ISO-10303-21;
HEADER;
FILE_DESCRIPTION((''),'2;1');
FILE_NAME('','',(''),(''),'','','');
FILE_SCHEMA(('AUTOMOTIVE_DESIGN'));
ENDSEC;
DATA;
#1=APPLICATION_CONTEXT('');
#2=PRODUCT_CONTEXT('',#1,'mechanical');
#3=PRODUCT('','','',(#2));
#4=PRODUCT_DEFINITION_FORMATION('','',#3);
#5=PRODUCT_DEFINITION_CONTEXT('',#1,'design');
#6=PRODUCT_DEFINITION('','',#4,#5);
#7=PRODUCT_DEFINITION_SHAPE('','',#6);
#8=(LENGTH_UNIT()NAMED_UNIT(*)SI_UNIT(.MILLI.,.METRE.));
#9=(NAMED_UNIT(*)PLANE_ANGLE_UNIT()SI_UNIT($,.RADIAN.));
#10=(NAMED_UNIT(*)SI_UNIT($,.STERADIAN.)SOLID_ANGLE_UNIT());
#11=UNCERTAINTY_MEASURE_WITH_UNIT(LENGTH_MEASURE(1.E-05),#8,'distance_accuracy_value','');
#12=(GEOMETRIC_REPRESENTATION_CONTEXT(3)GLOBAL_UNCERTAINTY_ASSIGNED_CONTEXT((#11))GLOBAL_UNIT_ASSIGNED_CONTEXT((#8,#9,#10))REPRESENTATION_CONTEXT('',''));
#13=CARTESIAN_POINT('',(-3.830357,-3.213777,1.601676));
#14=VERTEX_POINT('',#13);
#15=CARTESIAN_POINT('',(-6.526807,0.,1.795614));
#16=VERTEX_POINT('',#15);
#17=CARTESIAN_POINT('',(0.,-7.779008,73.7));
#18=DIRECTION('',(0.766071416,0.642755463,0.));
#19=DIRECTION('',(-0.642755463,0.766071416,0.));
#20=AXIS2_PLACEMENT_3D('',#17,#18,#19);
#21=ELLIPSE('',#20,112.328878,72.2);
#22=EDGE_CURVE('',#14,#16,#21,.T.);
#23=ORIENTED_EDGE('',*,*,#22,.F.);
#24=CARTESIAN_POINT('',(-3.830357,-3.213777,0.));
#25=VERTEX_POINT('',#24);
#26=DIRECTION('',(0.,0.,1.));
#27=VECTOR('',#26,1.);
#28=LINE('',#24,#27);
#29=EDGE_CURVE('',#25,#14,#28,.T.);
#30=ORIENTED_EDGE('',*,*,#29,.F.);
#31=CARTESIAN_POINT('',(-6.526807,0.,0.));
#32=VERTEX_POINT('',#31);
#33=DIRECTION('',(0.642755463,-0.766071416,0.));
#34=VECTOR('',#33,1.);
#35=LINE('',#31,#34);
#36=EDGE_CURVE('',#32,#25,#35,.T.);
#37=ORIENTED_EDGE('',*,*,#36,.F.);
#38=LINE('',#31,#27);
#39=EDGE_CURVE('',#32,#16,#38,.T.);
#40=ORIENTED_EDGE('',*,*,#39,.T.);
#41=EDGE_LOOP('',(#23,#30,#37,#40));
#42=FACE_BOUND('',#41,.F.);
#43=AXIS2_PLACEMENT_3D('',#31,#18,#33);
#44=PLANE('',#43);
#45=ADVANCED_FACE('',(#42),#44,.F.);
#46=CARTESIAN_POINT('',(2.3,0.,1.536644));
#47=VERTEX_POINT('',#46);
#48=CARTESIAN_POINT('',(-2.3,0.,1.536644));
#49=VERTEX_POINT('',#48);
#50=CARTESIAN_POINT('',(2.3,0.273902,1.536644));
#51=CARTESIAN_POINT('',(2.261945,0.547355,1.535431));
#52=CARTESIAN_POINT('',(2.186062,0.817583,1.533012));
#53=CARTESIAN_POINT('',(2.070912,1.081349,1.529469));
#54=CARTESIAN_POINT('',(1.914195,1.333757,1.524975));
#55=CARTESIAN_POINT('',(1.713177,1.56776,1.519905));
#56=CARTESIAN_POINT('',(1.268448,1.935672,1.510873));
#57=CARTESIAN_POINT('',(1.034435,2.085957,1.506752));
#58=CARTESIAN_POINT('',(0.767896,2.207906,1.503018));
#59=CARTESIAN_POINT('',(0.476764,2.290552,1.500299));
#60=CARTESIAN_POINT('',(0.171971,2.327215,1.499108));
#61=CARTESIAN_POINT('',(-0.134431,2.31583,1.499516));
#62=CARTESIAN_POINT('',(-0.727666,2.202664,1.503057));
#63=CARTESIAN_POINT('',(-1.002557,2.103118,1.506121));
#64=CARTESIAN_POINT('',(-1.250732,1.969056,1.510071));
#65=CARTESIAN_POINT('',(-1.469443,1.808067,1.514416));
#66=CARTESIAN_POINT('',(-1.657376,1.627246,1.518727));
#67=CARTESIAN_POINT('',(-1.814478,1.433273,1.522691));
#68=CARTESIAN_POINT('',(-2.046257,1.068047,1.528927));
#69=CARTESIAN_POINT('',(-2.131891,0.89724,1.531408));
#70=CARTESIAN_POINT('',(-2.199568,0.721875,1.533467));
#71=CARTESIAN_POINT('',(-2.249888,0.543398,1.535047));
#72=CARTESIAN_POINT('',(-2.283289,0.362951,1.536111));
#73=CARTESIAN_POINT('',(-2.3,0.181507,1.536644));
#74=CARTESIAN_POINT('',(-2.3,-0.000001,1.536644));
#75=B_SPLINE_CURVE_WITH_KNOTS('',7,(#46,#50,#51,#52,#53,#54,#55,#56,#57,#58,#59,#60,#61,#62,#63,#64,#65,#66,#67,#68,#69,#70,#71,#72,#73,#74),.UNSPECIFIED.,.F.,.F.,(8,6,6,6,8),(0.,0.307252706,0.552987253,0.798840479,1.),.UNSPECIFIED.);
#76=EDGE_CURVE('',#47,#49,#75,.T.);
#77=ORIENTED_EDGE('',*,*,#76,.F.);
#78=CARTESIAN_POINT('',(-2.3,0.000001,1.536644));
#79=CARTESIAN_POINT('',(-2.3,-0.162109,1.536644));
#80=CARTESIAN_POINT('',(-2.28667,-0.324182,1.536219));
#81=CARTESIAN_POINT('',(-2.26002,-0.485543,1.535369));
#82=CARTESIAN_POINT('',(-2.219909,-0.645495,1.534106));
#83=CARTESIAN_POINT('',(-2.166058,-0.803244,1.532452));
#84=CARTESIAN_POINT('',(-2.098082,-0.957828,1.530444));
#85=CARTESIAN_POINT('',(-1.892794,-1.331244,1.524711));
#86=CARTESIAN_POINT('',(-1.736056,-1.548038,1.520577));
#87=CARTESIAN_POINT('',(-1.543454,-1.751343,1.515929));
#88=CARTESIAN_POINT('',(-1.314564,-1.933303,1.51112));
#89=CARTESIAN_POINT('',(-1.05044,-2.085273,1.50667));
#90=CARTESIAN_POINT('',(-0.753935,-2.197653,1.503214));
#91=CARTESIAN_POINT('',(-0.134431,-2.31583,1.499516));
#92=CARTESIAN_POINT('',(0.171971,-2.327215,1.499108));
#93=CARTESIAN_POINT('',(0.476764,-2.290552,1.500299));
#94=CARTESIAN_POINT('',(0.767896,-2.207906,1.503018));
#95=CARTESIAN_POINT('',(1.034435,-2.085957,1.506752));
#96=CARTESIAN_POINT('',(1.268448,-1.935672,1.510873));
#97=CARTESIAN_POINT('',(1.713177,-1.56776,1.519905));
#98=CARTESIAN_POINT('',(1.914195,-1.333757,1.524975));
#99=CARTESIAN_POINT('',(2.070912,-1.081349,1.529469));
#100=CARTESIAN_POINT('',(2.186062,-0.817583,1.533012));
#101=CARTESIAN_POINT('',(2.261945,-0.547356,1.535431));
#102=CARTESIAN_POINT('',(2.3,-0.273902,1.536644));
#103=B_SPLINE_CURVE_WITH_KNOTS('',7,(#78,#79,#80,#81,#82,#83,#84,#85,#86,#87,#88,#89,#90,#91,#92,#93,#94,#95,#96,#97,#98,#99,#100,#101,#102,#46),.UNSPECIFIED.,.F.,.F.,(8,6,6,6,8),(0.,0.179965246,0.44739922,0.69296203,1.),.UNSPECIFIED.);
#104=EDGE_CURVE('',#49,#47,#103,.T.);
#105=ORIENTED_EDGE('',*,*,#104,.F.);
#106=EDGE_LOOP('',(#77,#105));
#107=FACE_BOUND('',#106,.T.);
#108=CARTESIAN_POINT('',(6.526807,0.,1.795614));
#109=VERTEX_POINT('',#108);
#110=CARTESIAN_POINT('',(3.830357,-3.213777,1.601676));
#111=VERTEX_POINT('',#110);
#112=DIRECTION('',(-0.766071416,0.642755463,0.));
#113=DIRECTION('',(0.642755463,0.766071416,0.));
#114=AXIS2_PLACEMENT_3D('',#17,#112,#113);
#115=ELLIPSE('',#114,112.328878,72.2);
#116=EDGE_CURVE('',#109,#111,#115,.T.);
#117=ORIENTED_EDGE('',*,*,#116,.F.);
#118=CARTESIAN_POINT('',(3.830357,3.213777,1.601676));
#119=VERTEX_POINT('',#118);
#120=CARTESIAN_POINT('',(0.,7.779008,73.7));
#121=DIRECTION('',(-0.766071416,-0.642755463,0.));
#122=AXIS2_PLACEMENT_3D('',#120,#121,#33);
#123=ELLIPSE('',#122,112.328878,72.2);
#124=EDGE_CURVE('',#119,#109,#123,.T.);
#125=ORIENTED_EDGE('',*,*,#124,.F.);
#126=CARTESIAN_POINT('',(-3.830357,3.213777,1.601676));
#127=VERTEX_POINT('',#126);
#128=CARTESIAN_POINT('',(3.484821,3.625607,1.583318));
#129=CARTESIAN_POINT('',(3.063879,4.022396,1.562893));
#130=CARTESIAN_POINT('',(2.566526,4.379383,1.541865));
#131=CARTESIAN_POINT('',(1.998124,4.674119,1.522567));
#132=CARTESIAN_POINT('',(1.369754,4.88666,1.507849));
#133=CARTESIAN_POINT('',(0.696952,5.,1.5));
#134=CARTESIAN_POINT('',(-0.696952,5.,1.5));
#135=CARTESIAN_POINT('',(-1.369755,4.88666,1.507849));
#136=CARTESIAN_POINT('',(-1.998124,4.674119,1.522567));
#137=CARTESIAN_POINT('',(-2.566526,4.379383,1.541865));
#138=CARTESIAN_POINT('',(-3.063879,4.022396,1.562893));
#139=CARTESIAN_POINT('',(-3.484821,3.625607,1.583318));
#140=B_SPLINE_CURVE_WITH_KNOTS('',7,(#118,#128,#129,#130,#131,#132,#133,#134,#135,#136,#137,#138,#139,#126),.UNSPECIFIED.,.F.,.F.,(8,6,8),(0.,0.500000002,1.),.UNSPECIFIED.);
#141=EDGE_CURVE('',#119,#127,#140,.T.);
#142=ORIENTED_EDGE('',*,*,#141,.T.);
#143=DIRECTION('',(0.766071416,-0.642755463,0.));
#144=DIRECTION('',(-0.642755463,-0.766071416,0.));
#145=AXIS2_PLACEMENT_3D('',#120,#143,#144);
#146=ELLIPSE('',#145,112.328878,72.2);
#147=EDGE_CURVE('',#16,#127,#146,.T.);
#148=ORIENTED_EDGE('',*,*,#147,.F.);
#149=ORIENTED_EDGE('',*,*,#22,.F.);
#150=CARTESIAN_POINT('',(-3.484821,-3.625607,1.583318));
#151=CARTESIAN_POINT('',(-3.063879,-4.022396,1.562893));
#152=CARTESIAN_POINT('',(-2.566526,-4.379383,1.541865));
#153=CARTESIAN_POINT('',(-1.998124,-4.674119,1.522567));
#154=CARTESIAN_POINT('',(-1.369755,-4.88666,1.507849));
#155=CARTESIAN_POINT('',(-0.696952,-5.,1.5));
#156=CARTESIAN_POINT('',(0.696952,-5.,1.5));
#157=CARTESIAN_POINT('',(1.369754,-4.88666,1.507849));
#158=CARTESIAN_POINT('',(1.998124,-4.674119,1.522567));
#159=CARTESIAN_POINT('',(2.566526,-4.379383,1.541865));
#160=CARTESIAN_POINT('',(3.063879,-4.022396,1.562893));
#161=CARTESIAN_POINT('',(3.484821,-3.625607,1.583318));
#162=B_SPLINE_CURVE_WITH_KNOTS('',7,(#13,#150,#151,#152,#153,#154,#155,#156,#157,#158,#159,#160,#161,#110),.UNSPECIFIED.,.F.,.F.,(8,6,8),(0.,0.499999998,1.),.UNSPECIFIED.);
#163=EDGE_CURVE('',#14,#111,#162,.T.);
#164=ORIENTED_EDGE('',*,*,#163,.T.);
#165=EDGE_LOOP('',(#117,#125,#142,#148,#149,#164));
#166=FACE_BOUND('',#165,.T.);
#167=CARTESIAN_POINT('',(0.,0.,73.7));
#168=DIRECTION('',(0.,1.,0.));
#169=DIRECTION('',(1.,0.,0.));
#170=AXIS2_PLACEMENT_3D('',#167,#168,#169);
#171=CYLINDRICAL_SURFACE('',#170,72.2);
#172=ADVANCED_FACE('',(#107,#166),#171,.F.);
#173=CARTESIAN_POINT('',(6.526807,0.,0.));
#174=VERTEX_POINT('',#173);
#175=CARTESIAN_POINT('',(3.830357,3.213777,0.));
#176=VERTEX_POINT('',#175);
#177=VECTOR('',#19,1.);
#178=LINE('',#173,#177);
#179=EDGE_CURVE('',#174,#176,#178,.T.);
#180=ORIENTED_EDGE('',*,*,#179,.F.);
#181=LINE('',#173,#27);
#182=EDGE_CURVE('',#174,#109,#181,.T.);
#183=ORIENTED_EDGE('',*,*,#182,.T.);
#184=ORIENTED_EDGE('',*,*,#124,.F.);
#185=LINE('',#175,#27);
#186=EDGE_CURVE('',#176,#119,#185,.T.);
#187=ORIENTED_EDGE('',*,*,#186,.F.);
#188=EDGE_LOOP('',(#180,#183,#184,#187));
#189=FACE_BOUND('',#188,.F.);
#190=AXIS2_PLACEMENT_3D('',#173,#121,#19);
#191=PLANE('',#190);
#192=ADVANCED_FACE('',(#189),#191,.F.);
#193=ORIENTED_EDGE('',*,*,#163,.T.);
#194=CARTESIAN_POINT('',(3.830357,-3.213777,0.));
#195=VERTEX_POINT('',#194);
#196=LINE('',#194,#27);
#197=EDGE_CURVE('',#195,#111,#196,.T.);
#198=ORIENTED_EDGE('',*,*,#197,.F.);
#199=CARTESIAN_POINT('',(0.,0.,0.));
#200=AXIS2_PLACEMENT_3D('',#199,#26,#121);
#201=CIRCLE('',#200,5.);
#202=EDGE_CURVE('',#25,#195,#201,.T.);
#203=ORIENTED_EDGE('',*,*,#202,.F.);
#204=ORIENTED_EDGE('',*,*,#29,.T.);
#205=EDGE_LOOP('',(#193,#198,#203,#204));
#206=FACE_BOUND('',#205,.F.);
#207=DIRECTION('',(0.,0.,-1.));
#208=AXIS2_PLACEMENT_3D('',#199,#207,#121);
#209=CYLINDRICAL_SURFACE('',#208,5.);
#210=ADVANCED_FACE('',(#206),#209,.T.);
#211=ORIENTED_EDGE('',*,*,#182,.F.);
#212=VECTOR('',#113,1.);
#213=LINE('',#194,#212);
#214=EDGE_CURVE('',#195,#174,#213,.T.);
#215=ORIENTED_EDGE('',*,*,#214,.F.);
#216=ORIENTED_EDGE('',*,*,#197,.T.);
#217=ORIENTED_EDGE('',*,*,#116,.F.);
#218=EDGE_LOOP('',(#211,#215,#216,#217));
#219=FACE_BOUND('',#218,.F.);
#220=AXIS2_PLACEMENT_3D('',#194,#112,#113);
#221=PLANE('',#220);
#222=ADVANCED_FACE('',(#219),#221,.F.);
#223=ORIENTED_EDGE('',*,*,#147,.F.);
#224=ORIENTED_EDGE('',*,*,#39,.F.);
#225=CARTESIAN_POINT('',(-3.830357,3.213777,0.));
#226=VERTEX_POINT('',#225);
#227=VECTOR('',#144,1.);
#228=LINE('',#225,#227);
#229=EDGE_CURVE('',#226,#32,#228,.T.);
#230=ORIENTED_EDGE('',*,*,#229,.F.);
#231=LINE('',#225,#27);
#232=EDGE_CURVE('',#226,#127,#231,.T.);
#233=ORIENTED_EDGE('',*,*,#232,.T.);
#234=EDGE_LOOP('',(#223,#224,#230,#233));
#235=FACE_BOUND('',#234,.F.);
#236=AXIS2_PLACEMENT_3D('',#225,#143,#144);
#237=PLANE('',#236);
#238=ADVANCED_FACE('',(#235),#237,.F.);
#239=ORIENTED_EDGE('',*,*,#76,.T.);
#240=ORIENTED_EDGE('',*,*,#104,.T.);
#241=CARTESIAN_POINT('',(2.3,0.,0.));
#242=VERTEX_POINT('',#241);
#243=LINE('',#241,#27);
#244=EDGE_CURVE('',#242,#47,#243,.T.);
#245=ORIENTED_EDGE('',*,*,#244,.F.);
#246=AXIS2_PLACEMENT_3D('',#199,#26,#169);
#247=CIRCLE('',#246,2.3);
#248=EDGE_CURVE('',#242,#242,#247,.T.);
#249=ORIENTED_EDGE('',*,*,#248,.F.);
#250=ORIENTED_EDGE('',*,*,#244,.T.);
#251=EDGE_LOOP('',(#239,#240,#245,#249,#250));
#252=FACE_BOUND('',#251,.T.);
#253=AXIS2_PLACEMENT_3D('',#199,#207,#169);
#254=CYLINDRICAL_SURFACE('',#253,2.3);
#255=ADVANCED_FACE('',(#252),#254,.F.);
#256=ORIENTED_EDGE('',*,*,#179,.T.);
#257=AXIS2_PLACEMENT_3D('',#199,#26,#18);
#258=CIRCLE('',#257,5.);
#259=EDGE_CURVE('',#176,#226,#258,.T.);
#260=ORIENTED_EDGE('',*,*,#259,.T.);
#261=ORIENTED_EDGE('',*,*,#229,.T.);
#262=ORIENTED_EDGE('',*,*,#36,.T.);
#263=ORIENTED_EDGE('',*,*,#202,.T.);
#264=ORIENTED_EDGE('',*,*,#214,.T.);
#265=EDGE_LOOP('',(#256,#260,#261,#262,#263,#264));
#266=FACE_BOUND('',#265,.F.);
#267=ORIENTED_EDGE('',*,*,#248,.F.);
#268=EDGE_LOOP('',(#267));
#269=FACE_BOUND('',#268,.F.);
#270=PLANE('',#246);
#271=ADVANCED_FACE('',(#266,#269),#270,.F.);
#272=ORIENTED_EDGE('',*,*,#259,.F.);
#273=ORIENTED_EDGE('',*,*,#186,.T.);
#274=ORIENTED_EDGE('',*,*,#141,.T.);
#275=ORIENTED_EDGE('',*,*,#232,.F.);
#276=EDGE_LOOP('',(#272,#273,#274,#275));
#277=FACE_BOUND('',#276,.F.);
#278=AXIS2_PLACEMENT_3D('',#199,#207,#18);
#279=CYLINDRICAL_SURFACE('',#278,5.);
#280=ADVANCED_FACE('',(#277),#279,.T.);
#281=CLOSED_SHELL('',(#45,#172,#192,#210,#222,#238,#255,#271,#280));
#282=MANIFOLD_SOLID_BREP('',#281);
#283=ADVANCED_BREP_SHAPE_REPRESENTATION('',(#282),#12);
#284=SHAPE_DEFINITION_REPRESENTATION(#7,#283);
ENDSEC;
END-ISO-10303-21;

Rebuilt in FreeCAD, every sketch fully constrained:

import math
import FreeCAD as App
import Part
import Sketcher
from FreeCAD import Vector

doc = App.newDocument("Part")
body = doc.addObject("PartDesign::Body", "Body")

# Sketch on XY plane
sketch1 = body.newObject("Sketcher::SketchObject", "Sketch")
sketch1.AttachmentSupport = (doc.getObject("XY_Plane"), [""])
sketch1.MapMode = "FlatFace"
sketch1.addGeometry([
    Part.LineSegment(Vector(-6.5, 0, 0), Vector(-3.8, -3.2, 0)),  # 0
    Part.ArcOfCircle(Part.Circle(Vector(0, 0, 0), Vector(0, 0, 1), 5), math.radians(-140), math.radians(-40)),  # 1
    Part.LineSegment(Vector(3.8, -3.2, 0), Vector(6.5, 0, 0)),  # 2
    Part.LineSegment(Vector(6.5, 0, 0), Vector(3.8, 3.2, 0)),  # 3
    Part.ArcOfCircle(Part.Circle(Vector(0, 0, 0), Vector(0, 0, 1), 5), math.radians(40), math.radians(140)),  # 4
    Part.LineSegment(Vector(-3.8, 3.2, 0), Vector(-6.5, 0, 0)),  # 5
    Part.Circle(Vector(0, 0, 0), Vector(0, 0, 1), 2.3),  # 6
], False)
sketch1.addConstraint([
    Sketcher.Constraint("Tangent", 0, 2, 1, 1),
    Sketcher.Constraint("Tangent", 1, 2, 2, 1),
    Sketcher.Constraint("Coincident", 2, 2, 3, 1),
    Sketcher.Constraint("Tangent", 3, 2, 4, 1),
    Sketcher.Constraint("Tangent", 4, 2, 5, 1),
    Sketcher.Constraint("Coincident", 5, 2, 0, 1),
    Sketcher.Constraint("Coincident", 1, 3, -1, 1),
    Sketcher.Constraint("Coincident", 4, 3, -1, 1),
    Sketcher.Constraint("Coincident", 6, 3, -1, 1),
    Sketcher.Constraint("Equal", 1, 4),
    Sketcher.Constraint("Symmetric", 2, 2, 5, 2, -1, 1),
    Sketcher.Constraint("PointOnObject", 2, 2, -1),
    Sketcher.Constraint("Radius", 1, 5.0),
    Sketcher.Constraint("Diameter", 6, 4.6),
    Sketcher.Constraint("Distance", 0, 4.195141),
])
pad1 = body.newObject("PartDesign::Pad", "Pad")
pad1.Profile = sketch1
pad1.Length = 3

# Sketch on XZ plane
sketch2 = body.newObject("Sketcher::SketchObject", "Sketch001")
sketch2.AttachmentSupport = (doc.getObject("XZ_Plane"), [""])
sketch2.MapMode = "FlatFace"
sketch2.addGeometry(Part.Circle(Vector(0, 74, 0), Vector(0, 0, 1), 72), False)
sketch2.addConstraint([
    Sketcher.Constraint("PointOnObject", 0, 3, -2),
    Sketcher.Constraint("Diameter", 0, 144.4),
    Sketcher.Constraint("DistanceY", -1, 1, 0, 3, 73.7),
])
pocket1 = body.newObject("PartDesign::Pocket", "Pocket")
pocket1.Profile = sketch2
pocket1.Type = "ThroughAll"
pocket1.Midplane = True

doc.recompute()
